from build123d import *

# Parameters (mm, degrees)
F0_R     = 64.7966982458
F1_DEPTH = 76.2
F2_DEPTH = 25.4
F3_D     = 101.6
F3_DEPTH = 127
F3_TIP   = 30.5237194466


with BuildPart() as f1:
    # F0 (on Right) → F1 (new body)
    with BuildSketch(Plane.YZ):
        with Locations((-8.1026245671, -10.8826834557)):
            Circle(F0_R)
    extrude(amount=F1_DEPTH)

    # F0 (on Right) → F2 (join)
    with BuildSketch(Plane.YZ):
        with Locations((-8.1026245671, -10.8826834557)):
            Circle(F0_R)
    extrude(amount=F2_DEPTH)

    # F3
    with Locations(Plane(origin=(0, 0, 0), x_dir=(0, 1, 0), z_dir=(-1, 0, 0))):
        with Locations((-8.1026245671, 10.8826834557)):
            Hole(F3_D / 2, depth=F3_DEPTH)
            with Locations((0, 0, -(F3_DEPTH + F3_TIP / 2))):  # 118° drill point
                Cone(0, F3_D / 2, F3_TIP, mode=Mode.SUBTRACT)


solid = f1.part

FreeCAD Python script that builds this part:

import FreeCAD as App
import Part
import Sketcher

V = App.Vector
Q = App.Units.Quantity

doc = App.newDocument("Part")
body = doc.addObject("PartDesign::Body", "Body")

# Sketch on YZ plane
sketch1 = body.newObject("Sketcher::SketchObject", "Sketch")
sketch1.AttachmentSupport = (doc.getObject("YZ_Plane"), [""])
sketch1.MapMode = "FlatFace"
sketch1.addGeometry(Part.Circle(V(-8.102625, -10.882683, 0), V(0, 0, 1), 64.796698), False)
sketch1.addConstraint([
    Sketcher.Constraint("Diameter", 0, 129.593396),
    Sketcher.Constraint("DistanceX", 0, 3, -1, 1, 8.102625),
    Sketcher.Constraint("DistanceY", 0, 3, -1, 1, 10.882683),
])
pad1 = body.newObject("PartDesign::Pad", "Pad")
pad1.Profile = sketch1
pad1.Length = Q("3 in")

# Sketch on YZ plane
sketch2 = body.newObject("Sketcher::SketchObject", "Sketch001")
sketch2.AttachmentSupport = (doc.getObject("YZ_Plane"), [""])
sketch2.MapMode = "FlatFace"
sketch2.addGeometry(Part.Circle(V(-8.102625, -10.882683, 0), V(0, 0, 1), 64.796698), False)
sketch2.addConstraint([
    Sketcher.Constraint("Diameter", 0, 129.593396),
    Sketcher.Constraint("DistanceX", 0, 3, -1, 1, 8.102625),
    Sketcher.Constraint("DistanceY", 0, 3, -1, 1, 10.882683),
])
pad2 = body.newObject("PartDesign::Pad", "Pad001")
pad2.Profile = sketch2
pad2.Length = Q("1 in")

# Sketch on YZ plane
sketch3 = body.newObject("Sketcher::SketchObject", "Sketch002")
sketch3.AttachmentSupport = (doc.getObject("YZ_Plane"), [""])
sketch3.MapMode = "FlatFace"
sketch3.addGeometry(Part.Circle(V(-8.102625, -10.882683, 0), V(0, 0, 1), 50.8), False)
sketch3.addConstraint([
    Sketcher.Constraint("Diameter", 0, Q("4 in")),
    Sketcher.Constraint("DistanceX", 0, 3, -1, 1, 8.102625),
    Sketcher.Constraint("DistanceY", 0, 3, -1, 1, 10.882683),
])
doc.recompute()
hole = body.newObject("PartDesign::Hole", "Hole")
hole.Profile = sketch3
hole.ThreadType = "None"
hole.Diameter = Q("4 in")
hole.DepthType = "Dimension"
hole.Depth = Q("5 in")
hole.DrillPoint = "Angled"
hole.DrillPointAngle = 118
hole.Reversed = True

doc.recompute()
